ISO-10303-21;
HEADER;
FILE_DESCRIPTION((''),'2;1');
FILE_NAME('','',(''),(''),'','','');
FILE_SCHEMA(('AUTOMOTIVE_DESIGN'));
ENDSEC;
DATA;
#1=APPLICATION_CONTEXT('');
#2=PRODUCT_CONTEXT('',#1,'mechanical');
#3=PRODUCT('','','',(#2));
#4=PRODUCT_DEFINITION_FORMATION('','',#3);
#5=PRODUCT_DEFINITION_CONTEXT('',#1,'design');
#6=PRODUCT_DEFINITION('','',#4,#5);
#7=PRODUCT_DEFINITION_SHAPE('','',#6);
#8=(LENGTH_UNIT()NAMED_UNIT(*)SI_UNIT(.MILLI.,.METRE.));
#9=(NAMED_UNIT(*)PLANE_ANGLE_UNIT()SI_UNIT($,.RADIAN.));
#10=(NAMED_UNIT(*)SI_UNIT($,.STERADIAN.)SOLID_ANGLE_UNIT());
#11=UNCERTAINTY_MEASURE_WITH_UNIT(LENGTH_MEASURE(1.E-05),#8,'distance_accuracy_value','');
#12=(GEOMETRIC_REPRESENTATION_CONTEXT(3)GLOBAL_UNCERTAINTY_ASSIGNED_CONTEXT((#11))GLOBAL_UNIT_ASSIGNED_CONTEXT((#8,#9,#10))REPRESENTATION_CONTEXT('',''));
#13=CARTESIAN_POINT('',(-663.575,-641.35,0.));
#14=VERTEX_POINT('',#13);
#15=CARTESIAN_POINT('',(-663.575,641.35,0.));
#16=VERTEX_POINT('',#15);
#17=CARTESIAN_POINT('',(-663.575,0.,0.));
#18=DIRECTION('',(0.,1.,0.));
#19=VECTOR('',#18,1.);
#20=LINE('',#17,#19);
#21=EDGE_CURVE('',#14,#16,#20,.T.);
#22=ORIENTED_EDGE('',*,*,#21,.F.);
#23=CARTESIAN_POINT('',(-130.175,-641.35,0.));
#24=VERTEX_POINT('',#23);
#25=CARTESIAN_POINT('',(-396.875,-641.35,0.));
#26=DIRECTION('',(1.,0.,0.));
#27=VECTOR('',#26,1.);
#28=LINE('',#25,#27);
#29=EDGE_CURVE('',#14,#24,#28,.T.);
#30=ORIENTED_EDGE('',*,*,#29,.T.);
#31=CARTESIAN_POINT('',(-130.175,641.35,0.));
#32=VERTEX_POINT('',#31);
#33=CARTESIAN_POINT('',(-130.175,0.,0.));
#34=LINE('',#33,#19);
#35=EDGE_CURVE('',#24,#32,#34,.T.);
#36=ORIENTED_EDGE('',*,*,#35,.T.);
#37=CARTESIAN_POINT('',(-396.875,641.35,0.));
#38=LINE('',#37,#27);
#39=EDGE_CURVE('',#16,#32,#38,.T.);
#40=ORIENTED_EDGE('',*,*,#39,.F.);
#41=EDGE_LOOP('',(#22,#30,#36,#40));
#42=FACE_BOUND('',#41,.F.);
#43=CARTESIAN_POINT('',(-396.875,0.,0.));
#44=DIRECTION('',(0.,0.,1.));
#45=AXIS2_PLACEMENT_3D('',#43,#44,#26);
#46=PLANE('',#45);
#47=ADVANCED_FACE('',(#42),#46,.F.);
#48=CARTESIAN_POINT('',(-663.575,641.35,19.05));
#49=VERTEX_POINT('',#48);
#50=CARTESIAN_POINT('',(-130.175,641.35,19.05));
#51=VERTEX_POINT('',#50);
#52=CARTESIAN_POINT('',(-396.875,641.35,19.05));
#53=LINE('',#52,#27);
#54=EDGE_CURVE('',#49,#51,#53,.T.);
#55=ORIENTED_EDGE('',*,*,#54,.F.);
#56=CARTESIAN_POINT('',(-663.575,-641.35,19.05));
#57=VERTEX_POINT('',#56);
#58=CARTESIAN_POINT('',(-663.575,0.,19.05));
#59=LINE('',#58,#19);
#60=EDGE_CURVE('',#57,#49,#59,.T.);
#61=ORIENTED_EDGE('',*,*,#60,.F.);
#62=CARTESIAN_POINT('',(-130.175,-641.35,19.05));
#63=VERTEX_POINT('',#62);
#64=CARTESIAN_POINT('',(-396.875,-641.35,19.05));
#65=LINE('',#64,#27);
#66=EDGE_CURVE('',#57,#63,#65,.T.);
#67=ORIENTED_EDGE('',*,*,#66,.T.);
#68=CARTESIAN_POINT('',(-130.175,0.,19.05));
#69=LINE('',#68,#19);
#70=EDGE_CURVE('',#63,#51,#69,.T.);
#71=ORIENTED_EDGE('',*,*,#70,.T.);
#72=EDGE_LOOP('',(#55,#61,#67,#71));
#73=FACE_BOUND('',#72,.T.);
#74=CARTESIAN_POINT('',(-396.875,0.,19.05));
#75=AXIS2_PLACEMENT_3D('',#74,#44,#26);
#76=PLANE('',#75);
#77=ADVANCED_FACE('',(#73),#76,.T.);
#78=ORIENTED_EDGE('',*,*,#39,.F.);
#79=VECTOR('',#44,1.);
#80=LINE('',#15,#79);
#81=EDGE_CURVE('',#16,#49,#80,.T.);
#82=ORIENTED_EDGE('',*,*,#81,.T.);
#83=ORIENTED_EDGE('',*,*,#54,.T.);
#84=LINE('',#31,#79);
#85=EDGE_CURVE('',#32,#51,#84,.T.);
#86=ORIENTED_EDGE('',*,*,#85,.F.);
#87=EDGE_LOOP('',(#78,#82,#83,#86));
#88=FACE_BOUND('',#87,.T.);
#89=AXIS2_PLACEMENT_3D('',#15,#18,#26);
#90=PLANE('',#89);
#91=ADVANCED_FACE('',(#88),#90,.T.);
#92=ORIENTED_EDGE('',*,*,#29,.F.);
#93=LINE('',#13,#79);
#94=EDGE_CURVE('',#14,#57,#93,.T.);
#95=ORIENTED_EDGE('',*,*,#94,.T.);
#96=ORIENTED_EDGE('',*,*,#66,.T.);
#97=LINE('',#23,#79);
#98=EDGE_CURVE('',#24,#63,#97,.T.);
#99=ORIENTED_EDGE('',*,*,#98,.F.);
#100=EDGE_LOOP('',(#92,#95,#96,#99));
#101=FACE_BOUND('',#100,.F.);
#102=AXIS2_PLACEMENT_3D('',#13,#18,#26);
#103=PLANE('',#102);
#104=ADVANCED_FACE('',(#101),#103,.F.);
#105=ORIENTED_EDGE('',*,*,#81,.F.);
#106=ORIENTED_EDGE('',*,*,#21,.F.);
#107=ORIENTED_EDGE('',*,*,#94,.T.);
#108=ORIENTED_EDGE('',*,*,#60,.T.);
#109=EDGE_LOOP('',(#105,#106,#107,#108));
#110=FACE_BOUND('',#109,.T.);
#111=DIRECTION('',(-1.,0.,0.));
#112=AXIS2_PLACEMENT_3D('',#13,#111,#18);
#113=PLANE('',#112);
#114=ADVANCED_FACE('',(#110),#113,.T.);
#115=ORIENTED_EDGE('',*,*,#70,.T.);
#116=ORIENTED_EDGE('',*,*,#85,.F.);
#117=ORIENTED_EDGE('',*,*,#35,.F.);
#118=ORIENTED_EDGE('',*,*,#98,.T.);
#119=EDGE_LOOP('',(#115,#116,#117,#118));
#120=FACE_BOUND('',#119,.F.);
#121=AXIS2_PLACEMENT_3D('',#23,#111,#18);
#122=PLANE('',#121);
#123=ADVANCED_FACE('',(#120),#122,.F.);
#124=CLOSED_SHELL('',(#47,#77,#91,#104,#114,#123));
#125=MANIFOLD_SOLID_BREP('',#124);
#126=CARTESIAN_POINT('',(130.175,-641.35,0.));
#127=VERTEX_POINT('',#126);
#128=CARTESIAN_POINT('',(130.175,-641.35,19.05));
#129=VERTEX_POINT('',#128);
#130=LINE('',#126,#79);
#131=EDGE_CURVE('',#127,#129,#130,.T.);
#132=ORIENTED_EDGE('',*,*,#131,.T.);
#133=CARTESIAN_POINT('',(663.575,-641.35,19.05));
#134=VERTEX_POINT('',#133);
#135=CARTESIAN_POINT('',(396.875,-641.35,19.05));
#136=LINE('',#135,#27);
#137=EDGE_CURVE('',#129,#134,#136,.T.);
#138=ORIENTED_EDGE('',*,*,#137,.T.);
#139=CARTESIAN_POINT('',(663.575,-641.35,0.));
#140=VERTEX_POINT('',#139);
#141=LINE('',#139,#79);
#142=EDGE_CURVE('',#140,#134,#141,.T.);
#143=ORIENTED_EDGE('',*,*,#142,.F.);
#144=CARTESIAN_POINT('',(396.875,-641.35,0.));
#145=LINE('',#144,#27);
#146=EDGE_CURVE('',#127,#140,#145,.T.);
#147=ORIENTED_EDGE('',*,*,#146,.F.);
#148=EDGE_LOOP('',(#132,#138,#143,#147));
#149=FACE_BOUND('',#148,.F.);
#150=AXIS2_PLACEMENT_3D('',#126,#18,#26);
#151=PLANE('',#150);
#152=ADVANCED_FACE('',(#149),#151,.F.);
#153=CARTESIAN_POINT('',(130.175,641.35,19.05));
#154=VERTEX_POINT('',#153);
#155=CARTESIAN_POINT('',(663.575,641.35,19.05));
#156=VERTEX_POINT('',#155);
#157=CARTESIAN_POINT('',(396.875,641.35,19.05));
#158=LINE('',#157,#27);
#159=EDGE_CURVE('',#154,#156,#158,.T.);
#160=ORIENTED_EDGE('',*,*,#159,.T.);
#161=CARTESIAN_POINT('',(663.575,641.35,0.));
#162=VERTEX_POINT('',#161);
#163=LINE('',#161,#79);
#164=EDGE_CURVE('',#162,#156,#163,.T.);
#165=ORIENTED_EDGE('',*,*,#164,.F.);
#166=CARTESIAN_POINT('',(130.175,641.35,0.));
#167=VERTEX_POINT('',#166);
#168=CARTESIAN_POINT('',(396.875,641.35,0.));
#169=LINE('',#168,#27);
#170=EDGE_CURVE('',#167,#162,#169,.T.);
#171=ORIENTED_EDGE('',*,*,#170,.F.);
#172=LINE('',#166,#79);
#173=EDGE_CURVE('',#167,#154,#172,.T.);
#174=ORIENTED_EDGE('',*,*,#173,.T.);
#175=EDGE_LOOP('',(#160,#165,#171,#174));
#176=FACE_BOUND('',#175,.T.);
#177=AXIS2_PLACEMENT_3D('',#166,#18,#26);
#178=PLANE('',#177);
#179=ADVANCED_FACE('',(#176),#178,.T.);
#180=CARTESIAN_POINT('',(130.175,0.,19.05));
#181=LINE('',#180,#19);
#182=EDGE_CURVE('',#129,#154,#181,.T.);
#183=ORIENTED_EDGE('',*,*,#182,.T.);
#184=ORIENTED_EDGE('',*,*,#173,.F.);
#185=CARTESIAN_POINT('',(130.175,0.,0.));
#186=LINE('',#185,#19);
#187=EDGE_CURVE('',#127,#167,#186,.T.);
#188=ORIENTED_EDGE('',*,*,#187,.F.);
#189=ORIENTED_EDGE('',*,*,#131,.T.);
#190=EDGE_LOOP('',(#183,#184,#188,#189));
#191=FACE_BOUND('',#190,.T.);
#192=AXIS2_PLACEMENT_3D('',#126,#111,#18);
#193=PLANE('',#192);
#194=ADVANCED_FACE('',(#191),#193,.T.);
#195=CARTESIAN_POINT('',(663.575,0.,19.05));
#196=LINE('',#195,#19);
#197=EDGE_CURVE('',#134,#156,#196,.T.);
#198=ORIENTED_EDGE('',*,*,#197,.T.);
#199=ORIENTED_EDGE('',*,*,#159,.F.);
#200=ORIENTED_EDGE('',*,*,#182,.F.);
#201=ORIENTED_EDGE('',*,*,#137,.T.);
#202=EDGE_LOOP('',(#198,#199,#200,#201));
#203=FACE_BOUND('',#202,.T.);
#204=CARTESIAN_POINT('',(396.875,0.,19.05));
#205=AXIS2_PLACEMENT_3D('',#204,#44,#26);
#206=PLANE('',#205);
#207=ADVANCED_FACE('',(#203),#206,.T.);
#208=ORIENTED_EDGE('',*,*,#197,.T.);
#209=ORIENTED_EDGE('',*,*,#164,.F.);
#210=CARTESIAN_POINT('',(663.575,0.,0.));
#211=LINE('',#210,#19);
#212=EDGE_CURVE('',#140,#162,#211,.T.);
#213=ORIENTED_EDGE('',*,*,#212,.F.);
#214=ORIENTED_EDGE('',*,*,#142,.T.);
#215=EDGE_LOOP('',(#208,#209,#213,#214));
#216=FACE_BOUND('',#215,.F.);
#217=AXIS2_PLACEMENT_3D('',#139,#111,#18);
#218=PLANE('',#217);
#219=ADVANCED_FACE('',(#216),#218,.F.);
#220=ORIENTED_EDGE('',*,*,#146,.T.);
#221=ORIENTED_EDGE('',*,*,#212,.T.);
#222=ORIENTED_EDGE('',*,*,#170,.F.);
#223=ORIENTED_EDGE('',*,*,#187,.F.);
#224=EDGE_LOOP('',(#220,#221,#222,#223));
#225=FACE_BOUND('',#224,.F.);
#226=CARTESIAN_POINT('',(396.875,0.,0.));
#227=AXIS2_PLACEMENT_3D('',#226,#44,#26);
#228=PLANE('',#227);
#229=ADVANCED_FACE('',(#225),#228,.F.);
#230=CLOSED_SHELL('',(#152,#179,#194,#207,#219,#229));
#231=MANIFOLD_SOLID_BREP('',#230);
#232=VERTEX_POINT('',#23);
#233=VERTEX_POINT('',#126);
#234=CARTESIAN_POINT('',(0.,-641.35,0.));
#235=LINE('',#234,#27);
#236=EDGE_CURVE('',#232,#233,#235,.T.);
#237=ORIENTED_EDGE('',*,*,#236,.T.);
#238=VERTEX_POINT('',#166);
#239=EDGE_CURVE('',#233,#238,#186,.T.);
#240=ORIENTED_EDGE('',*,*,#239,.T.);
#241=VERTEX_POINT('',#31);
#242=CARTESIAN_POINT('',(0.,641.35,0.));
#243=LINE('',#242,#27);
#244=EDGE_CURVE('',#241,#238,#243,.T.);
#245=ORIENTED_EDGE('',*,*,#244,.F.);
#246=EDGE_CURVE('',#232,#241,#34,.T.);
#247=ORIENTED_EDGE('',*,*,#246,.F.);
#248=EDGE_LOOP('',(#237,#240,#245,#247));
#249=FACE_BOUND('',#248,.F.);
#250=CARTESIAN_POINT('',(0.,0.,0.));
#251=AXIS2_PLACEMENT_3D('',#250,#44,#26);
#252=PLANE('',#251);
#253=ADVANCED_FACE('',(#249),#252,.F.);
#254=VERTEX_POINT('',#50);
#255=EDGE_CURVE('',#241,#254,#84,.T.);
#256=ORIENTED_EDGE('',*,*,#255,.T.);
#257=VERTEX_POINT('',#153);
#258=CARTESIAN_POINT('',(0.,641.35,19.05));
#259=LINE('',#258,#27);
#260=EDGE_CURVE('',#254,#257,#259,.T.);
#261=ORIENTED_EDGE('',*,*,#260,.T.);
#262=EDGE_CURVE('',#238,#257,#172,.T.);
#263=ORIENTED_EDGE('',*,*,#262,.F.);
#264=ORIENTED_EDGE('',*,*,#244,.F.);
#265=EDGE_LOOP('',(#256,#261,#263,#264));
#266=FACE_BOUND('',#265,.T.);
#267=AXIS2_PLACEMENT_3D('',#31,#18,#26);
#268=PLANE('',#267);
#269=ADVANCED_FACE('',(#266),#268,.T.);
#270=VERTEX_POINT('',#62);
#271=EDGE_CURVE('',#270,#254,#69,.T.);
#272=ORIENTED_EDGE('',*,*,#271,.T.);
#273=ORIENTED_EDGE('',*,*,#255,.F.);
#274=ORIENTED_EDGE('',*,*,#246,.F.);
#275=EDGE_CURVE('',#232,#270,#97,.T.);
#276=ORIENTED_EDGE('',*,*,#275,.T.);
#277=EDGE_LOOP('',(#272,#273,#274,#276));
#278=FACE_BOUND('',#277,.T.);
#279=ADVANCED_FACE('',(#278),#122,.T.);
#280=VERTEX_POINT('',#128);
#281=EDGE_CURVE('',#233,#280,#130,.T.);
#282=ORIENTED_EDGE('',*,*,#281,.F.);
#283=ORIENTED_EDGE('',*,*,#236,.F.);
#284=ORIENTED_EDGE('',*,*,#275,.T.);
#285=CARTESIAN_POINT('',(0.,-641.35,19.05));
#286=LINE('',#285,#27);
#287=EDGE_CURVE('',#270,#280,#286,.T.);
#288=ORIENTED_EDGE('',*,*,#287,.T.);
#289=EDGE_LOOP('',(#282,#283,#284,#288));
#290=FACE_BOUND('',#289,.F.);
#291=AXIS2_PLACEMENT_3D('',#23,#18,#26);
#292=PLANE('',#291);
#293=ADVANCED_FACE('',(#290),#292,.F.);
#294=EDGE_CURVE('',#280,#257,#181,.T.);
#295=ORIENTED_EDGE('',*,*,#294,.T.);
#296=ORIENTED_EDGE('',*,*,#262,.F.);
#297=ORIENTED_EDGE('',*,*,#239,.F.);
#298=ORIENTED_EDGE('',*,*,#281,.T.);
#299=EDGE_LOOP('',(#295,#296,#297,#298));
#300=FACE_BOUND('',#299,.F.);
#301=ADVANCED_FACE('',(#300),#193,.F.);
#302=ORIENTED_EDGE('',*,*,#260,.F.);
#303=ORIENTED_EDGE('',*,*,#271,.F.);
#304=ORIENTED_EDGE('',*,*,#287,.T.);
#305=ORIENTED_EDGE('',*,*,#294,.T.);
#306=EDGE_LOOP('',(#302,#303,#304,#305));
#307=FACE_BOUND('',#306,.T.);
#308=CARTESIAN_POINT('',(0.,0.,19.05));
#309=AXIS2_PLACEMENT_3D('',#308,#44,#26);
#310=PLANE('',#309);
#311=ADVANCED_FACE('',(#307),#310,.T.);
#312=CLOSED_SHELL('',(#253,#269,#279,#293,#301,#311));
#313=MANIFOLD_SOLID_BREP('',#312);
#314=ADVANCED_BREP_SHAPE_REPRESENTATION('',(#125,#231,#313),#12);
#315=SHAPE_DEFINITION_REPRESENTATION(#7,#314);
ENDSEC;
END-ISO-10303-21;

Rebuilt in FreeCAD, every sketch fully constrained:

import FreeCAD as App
import Part
import Sketcher
from FreeCAD import Vector
Q = App.Units.Quantity

doc = App.newDocument("Part")
body = doc.addObject("PartDesign::Body", "Body")

# Sketch on XY plane
sketch1 = body.newObject("Sketcher::SketchObject", "Sketch")
sketch1.AttachmentSupport = (doc.getObject("XY_Plane"), [""])
sketch1.MapMode = "FlatFace"
sketch1.addGeometry([
    Part.LineSegment(Vector(-664, 641, 0), Vector(-664, -641, 0)),
    Part.LineSegment(Vector(-664, -641, 0), Vector(-130, -641, 0)),
    Part.LineSegment(Vector(-130, -641, 0), Vector(-130, 641, 0)),
    Part.LineSegment(Vector(-130, 641, 0), Vector(-664, 641, 0)),
], False)
sketch1.addConstraint([
    Sketcher.Constraint("Coincident", 0, 2, 1, 1),
    Sketcher.Constraint("Coincident", 1, 2, 2, 1),
    Sketcher.Constraint("Coincident", 2, 2, 3, 1),
    Sketcher.Constraint("Coincident", 3, 2, 0, 1),
    Sketcher.Constraint("Vertical", 0),
    Sketcher.Constraint("Horizontal", 1),
    Sketcher.Constraint("Vertical", 2),
    Sketcher.Constraint("Horizontal", 3),
    Sketcher.Constraint("DistanceX", 1, 1, 1, 2, Q("21 in")),
    Sketcher.Constraint("DistanceY", 0, 2, 0, 1, Q("50.5 in")),
    Sketcher.Constraint("DistanceY", 0, 2, -1, 1, Q("25.25 in")),
    Sketcher.Constraint("DistanceX", 0, 2, -1, 1, Q("26.125 in")),
])
pad1 = body.newObject("PartDesign::Pad", "Pad")
pad1.Profile = sketch1
pad1.Length = Q("0.75 in")
body2 = doc.addObject("PartDesign::Body", "Body001")

# Sketch on XY plane
sketch2 = body2.newObject("Sketcher::SketchObject", "Sketch001")
sketch2.AttachmentSupport = (doc.getObject("XY_Plane001"), [""])
sketch2.MapMode = "FlatFace"
sketch2.addGeometry([
    Part.LineSegment(Vector(130, 641, 0), Vector(130, -641, 0)),
    Part.LineSegment(Vector(130, -641, 0), Vector(664, -641, 0)),
    Part.LineSegment(Vector(664, -641, 0), Vector(664, 641, 0)),
    Part.LineSegment(Vector(664, 641, 0), Vector(130, 641, 0)),
], False)
sketch2.addConstraint([
    Sketcher.Constraint("Coincident", 0, 2, 1, 1),
    Sketcher.Constraint("Coincident", 1, 2, 2, 1),
    Sketcher.Constraint("Coincident", 2, 2, 3, 1),
    Sketcher.Constraint("Coincident", 3, 2, 0, 1),
    Sketcher.Constraint("Vertical", 0),
    Sketcher.Constraint("Horizontal", 1),
    Sketcher.Constraint("Vertical", 2),
    Sketcher.Constraint("Horizontal", 3),
    Sketcher.Constraint("DistanceX", 1, 1, 1, 2, Q("21 in")),
    Sketcher.Constraint("DistanceY", 0, 2, 0, 1, Q("50.5 in")),
    Sketcher.Constraint("DistanceY", 0, 2, -1, 1, Q("25.25 in")),
    Sketcher.Constraint("DistanceX", -1, 1, 0, 2, Q("5.125 in")),
])
pad2 = body2.newObject("PartDesign::Pad", "Pad001")
pad2.Profile = sketch2
pad2.Length = Q("0.75 in")
body3 = doc.addObject("PartDesign::Body", "Body002")

# Sketch on XY plane
sketch3 = body3.newObject("Sketcher::SketchObject", "Sketch002")
sketch3.AttachmentSupport = (doc.getObject("XY_Plane002"), [""])
sketch3.MapMode = "FlatFace"
sketch3.addGeometry([
    Part.LineSegment(Vector(-130, 641, 0), Vector(-130, -641, 0)),
    Part.LineSegment(Vector(-130, -641, 0), Vector(130, -641, 0)),
    Part.LineSegment(Vector(130, -641, 0), Vector(130, 641, 0)),
    Part.LineSegment(Vector(130, 641, 0), Vector(-130, 641, 0)),
], False)
sketch3.addConstraint([
    Sketcher.Constraint("Coincident", 0, 2, 1, 1),
    Sketcher.Constraint("Coincident", 1, 2, 2, 1),
    Sketcher.Constraint("Coincident", 2, 2, 3, 1),
    Sketcher.Constraint("Coincident", 3, 2, 0, 1),
    Sketcher.Constraint("Vertical", 0),
    Sketcher.Constraint("Horizontal", 1),
    Sketcher.Constraint("Vertical", 2),
    Sketcher.Constraint("Horizontal", 3),
    Sketcher.Constraint("Symmetric", 0, 2, 2, 2, -1, 1),
    Sketcher.Constraint("DistanceY", 0, 2, 0, 1, Q("50.5 in")),
    Sketcher.Constraint("DistanceX", 1, 1, 1, 2, Q("10.25 in")),
])
pad3 = body3.newObject("PartDesign::Pad", "Pad002")
pad3.Profile = sketch3
pad3.Length = Q("0.75 in")

doc.recompute()
